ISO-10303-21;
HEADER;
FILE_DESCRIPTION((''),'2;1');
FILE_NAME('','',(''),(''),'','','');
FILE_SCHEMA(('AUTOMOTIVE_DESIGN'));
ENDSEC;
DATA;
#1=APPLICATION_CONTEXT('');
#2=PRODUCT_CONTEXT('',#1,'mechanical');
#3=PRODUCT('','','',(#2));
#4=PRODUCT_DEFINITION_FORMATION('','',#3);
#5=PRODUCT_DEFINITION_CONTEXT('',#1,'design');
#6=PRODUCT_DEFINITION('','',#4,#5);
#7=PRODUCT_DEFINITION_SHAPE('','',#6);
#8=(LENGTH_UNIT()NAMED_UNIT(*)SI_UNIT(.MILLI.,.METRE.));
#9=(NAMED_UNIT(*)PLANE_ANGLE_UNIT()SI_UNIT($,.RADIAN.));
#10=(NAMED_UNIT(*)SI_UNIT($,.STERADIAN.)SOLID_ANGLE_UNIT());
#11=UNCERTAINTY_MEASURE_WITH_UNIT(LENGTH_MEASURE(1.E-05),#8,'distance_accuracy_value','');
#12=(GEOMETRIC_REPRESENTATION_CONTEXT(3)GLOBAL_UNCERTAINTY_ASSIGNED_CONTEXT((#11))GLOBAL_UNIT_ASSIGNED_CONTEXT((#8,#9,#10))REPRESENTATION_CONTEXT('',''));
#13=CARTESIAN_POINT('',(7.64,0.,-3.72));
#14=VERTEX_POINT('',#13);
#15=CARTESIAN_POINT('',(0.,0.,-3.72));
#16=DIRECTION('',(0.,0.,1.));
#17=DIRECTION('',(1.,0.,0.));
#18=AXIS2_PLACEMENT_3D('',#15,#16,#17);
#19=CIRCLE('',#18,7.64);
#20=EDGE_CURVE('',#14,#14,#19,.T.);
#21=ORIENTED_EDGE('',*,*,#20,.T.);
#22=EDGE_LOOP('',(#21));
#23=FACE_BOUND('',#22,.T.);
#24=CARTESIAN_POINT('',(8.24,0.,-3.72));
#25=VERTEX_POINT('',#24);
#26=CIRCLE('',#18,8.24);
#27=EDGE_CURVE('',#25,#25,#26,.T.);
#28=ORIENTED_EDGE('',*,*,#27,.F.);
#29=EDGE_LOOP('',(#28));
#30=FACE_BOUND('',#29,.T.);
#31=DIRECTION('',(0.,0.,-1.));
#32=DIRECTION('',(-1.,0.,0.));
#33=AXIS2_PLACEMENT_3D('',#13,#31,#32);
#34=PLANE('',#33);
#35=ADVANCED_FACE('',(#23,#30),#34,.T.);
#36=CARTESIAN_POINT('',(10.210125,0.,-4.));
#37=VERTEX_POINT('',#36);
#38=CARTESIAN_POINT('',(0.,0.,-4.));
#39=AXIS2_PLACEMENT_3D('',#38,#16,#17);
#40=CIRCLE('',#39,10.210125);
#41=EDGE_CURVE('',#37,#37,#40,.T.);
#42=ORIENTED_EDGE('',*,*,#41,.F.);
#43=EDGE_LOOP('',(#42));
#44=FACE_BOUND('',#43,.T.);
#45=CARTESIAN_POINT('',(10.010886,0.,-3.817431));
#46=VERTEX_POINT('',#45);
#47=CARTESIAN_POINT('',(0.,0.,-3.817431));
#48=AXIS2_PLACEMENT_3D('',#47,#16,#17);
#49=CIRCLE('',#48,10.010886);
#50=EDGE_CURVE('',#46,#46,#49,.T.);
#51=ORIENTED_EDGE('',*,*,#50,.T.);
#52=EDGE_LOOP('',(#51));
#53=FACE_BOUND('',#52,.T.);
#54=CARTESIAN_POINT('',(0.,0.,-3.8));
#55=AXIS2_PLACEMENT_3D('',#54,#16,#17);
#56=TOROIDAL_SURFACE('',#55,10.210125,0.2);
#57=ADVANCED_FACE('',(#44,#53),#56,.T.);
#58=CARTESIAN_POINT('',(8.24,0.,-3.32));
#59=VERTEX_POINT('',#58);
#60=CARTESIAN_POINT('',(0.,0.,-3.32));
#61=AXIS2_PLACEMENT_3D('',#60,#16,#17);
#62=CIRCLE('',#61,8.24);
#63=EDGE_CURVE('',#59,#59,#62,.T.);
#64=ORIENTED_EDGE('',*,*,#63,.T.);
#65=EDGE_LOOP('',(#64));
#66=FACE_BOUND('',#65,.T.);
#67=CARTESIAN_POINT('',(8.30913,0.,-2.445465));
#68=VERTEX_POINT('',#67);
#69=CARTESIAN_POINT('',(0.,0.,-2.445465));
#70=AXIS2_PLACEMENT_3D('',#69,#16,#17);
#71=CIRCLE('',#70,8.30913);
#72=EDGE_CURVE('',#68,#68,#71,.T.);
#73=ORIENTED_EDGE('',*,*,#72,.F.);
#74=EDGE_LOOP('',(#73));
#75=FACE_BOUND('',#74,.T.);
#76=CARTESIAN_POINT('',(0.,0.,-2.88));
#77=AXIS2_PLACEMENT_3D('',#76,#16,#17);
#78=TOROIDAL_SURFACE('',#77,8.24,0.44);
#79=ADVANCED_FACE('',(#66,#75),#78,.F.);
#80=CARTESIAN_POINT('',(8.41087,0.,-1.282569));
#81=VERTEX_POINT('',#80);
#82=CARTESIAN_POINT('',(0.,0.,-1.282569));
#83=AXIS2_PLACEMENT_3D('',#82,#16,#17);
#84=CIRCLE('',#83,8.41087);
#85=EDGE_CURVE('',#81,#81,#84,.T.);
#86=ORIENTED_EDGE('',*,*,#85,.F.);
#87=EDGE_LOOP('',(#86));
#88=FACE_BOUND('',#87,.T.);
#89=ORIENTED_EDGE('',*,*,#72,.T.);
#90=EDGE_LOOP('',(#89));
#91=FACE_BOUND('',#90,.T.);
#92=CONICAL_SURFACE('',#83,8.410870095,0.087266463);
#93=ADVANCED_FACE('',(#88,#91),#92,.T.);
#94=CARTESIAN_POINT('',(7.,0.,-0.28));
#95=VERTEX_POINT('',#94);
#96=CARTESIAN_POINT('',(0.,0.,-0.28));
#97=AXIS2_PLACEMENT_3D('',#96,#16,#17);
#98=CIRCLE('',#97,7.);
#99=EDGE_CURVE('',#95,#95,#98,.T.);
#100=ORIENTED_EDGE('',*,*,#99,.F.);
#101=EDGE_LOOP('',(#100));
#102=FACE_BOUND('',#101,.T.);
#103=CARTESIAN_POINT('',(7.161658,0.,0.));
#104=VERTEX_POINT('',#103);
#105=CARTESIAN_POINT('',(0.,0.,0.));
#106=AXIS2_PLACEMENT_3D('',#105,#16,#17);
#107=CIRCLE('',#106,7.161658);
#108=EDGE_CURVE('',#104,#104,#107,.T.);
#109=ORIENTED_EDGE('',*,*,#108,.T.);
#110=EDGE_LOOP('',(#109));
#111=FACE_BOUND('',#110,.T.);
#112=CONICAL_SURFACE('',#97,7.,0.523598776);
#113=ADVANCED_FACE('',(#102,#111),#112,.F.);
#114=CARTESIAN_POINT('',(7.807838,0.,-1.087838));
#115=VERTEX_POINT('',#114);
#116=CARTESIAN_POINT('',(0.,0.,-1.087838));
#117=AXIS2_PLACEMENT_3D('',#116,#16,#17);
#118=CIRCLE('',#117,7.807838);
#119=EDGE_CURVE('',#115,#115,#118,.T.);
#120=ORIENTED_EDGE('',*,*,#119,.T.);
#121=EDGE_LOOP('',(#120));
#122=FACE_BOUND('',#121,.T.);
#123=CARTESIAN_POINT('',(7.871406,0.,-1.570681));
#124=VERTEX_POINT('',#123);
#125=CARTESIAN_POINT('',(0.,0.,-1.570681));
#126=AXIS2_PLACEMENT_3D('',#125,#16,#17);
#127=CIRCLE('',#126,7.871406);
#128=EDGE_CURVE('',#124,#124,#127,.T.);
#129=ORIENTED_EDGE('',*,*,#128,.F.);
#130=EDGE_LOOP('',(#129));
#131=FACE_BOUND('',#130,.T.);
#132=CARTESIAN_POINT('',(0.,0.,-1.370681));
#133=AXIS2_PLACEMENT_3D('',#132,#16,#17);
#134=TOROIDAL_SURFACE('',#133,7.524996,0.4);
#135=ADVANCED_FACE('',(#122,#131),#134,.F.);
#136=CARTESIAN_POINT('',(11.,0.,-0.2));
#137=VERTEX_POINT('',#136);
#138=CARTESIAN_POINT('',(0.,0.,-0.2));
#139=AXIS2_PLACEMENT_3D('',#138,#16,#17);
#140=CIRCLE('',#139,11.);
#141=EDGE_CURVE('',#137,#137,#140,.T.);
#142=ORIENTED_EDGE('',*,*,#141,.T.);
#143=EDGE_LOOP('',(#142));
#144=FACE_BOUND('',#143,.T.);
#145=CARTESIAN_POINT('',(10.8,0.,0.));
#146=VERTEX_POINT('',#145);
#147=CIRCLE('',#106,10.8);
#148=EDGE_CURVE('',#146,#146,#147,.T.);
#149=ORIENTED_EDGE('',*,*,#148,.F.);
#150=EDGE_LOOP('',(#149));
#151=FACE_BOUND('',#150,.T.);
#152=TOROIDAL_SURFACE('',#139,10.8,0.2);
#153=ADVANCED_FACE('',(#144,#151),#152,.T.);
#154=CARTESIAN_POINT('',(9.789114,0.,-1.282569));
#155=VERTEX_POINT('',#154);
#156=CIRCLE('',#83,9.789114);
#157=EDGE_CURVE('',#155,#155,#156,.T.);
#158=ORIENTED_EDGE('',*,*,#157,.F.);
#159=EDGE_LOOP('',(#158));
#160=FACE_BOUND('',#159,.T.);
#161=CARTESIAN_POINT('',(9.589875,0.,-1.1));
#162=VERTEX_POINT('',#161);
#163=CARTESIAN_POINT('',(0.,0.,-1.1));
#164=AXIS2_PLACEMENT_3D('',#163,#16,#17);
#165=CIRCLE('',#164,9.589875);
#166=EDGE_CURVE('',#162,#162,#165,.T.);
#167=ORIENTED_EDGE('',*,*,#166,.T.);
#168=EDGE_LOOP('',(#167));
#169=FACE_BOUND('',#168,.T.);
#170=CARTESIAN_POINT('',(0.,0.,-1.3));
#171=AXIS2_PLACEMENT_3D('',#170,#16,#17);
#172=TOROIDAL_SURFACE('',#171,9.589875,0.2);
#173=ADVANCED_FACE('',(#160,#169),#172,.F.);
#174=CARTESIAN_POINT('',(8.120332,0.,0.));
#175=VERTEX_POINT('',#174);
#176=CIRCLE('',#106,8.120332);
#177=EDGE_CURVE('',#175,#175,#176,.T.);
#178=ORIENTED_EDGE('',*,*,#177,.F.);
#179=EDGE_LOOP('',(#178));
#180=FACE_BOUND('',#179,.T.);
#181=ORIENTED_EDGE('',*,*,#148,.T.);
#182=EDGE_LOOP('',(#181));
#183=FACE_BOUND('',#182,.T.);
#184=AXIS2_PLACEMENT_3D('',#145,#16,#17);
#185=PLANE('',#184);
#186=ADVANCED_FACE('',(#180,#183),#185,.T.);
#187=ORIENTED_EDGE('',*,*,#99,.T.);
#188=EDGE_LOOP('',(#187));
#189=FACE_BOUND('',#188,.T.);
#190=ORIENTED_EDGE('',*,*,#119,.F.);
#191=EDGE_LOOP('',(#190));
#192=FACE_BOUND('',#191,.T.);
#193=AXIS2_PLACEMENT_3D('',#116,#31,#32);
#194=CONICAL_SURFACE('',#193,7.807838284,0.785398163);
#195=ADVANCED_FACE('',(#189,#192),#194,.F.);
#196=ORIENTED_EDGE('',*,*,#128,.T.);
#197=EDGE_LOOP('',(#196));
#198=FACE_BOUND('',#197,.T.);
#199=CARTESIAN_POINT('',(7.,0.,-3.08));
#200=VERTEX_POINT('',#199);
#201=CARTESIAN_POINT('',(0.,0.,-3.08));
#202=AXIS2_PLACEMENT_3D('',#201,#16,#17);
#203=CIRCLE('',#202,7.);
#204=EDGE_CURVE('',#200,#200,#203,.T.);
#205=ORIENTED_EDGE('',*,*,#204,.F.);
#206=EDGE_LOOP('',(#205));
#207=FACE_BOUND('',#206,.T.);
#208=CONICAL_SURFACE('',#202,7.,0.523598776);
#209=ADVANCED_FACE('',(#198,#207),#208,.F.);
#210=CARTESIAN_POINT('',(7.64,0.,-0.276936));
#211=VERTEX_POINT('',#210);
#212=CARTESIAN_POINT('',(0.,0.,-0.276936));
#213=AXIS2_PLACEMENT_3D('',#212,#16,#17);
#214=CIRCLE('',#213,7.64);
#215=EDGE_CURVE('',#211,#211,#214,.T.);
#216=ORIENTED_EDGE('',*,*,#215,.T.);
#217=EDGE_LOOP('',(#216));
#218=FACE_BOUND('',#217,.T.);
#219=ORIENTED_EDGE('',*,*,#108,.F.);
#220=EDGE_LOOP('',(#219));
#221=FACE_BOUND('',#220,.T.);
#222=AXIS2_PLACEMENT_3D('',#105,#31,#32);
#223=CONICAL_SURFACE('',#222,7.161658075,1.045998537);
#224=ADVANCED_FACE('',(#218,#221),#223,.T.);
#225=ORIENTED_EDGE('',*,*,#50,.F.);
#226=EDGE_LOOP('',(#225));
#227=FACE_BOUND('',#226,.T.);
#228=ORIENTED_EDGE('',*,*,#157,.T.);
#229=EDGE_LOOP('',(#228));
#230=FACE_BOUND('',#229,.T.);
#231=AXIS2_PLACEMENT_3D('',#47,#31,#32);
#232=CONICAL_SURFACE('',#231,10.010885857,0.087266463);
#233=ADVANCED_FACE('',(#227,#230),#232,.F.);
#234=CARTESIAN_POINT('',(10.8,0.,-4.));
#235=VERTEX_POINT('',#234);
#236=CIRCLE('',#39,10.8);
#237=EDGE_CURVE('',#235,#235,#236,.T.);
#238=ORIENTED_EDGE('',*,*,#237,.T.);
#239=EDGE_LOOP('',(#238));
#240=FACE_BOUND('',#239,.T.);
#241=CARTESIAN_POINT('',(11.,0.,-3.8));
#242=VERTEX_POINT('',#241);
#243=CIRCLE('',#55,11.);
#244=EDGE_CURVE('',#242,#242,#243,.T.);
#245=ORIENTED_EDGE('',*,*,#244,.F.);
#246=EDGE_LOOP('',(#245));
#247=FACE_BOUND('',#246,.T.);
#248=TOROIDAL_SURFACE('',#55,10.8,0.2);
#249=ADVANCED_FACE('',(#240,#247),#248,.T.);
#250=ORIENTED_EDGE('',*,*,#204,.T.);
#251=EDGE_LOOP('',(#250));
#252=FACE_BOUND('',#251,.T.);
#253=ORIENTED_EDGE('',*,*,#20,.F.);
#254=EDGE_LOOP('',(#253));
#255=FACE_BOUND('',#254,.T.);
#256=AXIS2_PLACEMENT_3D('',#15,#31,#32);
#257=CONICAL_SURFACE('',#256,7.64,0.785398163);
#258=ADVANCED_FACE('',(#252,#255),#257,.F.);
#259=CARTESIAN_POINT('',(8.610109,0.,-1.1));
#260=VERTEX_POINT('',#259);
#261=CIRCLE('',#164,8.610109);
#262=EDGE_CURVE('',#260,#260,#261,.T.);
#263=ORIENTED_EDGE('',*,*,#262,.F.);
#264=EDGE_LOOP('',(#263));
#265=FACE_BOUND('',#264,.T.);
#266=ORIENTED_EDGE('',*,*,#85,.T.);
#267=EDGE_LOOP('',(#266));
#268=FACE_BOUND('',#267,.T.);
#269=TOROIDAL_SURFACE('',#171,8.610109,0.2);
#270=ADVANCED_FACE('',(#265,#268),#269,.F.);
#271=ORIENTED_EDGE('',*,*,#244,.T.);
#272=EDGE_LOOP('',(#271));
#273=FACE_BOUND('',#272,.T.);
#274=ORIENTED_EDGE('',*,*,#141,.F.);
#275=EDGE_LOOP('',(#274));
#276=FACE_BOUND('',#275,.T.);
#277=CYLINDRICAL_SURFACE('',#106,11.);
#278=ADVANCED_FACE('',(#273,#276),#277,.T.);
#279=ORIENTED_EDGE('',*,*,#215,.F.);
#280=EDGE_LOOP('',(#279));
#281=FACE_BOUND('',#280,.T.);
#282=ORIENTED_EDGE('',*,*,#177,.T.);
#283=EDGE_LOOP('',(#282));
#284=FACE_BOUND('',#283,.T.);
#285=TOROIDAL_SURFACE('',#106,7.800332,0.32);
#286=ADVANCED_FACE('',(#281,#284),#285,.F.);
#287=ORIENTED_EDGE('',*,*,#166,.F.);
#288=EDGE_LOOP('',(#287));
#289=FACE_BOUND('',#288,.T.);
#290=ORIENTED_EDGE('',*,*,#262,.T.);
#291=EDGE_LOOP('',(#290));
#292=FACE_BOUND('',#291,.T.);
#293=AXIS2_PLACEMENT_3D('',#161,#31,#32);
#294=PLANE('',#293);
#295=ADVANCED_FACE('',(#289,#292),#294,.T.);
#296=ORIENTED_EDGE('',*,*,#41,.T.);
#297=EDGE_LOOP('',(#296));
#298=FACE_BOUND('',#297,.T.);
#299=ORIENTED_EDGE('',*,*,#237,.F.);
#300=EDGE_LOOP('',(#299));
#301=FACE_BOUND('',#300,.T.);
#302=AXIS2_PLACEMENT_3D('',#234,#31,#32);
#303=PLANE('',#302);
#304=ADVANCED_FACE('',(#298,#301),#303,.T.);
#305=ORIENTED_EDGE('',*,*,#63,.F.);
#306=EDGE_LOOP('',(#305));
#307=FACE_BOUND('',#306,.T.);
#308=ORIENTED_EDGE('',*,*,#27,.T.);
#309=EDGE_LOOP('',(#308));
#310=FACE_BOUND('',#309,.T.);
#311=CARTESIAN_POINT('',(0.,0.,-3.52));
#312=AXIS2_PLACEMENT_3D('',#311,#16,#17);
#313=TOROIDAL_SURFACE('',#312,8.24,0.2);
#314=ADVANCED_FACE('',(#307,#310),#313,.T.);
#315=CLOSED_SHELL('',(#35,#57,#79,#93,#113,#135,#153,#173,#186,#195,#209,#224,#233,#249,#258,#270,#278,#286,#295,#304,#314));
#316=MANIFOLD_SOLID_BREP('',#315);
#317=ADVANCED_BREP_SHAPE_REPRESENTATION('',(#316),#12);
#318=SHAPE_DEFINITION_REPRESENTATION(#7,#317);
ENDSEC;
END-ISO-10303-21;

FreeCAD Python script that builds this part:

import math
import FreeCAD as App
import Part
import Sketcher

V = App.Vector
Q = App.Units.Quantity

doc = App.newDocument("Part")
params = doc.addObject("Spreadsheet::Sheet", "Params")
for row, (alias, value) in enumerate([
    ("sketch1_radius", "0.2 mm"),
    ("sketch1_radius2", "0.4 mm"),
    ("sketch1_radius3", "0.44 mm"),
    ("sketch1_radius4", "0.32 mm"),
    ("sketch1_width", "0.6 mm"),
    ("revolution_angle", "360 deg"),
], start=1):
    params.set(f"A{row}", alias)
    params.set(f"B{row}", "=" + value)
    params.setAlias(f"B{row}", alias)

body = doc.addObject("PartDesign::Body", "Body")

sketch1 = body.newObject("Sketcher::SketchObject", "Sketch")
sketch1.AttachmentSupport = (doc.getObject("XZ_Plane"), [""])
sketch1.MapMode = "FlatFace"
sketch1.addGeometry([
    Part.LineSegment(V(11, -0.2, 0), V(11, -3.8, 0)),
    Part.ArcOfCircle(Part.Circle(V(10.8, -3.8, 0), V(0, 0, 1), 0.2), math.radians(-90), math.radians(0)),
    Part.LineSegment(V(10.8, -4, 0), V(10.210125, -4, 0)),
    Part.ArcOfCircle(Part.Circle(V(10.210125, -3.8, 0), V(0, 0, 1), 0.2), math.radians(-175), math.radians(-90)),
    Part.LineSegment(V(10.010886, -3.817431, 0), V(9.789114, -1.282569, 0)),
    Part.ArcOfCircle(Part.Circle(V(9.589875, -1.3, 0), V(0, 0, 1), 0.2), math.radians(5), math.radians(90)),
    Part.LineSegment(V(9.589875, -1.1, 0), V(8.610109, -1.1, 0)),
    Part.ArcOfCircle(Part.Circle(V(8.610109, -1.3, 0), V(0, 0, 1), 0.2), math.radians(90), math.radians(175)),
    Part.LineSegment(V(8.41087, -1.282569, 0), V(8.30913, -2.445465, 0)),
    Part.ArcOfCircle(Part.Circle(V(8.24, -2.88, 0), V(0, 0, 1), 0.44), math.radians(80.960612), math.radians(270)),
    Part.ArcOfCircle(Part.Circle(V(8.24, -3.52, 0), V(0, 0, 1), 0.2), math.radians(-90), math.radians(90)),
    Part.LineSegment(V(8.24, -3.72, 0), V(7.64, -3.72, 0)),
    Part.LineSegment(V(7.64, -3.72, 0), V(7, -3.08, 0)),
    Part.LineSegment(V(7, -3.08, 0), V(7.871406, -1.570681, 0)),
    Part.ArcOfCircle(Part.Circle(V(7.524996, -1.370681, 0), V(0, 0, 1), 0.4), math.radians(-30), math.radians(45)),
    Part.LineSegment(V(7.807838, -1.087838, 0), V(7, -0.28, 0)),
    Part.LineSegment(V(7, -0.28, 0), V(7.161658, 0, 0)),
    Part.LineSegment(V(7.161658, 0, 0), V(7.64, -0.276936, 0)),
    Part.ArcOfCircle(Part.Circle(V(7.800332, 0, 0), V(0, 0, 1), 0.32), math.radians(-120.068699), math.radians(0)),
    Part.LineSegment(V(8.120332, 0, 0), V(10.8, 0, 0)),
    Part.ArcOfCircle(Part.Circle(V(10.8, -0.2, 0), V(0, 0, 1), 0.2), math.radians(0), math.radians(90)),
], False)
sketch1.addConstraint([
    Sketcher.Constraint("Tangent", 0, 2, 1, 2),
    Sketcher.Constraint("Tangent", 1, 1, 2, 1),
    Sketcher.Constraint("Tangent", 2, 2, 3, 2),
    Sketcher.Constraint("Tangent", 3, 1, 4, 1),
    Sketcher.Constraint("Tangent", 4, 2, 5, 1),
    Sketcher.Constraint("Tangent", 5, 2, 6, 1),
    Sketcher.Constraint("Tangent", 6, 2, 7, 1),
    Sketcher.Constraint("Tangent", 7, 2, 8, 1),
    Sketcher.Constraint("Coincident", 8, 2, 9, 1),
    Sketcher.Constraint("Tangent", 9, 2, 10, 2),
    Sketcher.Constraint("Tangent", 10, 1, 11, 1),
    Sketcher.Constraint("Coincident", 11, 2, 12, 1),
    Sketcher.Constraint("Coincident", 12, 2, 13, 1),
    Sketcher.Constraint("Tangent", 13, 2, 14, 1),
    Sketcher.Constraint("Tangent", 14, 2, 15, 1),
    Sketcher.Constraint("Coincident", 15, 2, 16, 1),
    Sketcher.Constraint("Coincident", 16, 2, 17, 1),
    Sketcher.Constraint("Tangent", 17, 2, 18, 1),
    Sketcher.Constraint("Coincident", 18, 2, 19, 1),
    Sketcher.Constraint("Tangent", 19, 2, 20, 2),
    Sketcher.Constraint("Tangent", 20, 1, 0, 1),
    Sketcher.Constraint("Vertical", 0),
    Sketcher.Constraint("Horizontal", 2),
    Sketcher.Constraint("Horizontal", 6),
    Sketcher.Constraint("Horizontal", 11),
    Sketcher.Constraint("Horizontal", 19),
    Sketcher.Constraint("Equal", 1, 3),
    Sketcher.Constraint("Equal", 3, 5),
    Sketcher.Constraint("Equal", 5, 7),
    Sketcher.Constraint("Equal", 7, 10),
    Sketcher.Constraint("Equal", 10, 20),
    Sketcher.Constraint("PointOnObject", 18, 3, -1),
    Sketcher.Constraint("PointOnObject", 16, 2, -1),
    Sketcher.Constraint("PointOnObject", 18, 2, -1),
    Sketcher.Constraint("Parallel", 12, 15),
    Sketcher.Constraint("Parallel", 13, 16),
    Sketcher.Constraint("Horizontal", 4, 2, 7, 2),
    Sketcher.Constraint("Vertical", 9, 3, 10, 3),
    Sketcher.Constraint("Vertical", 12, 2, 15, 2),
    Sketcher.Constraint("Vertical", 11, 2, 17, 2),
    Sketcher.Constraint("Radius", 1, 0.2),
    Sketcher.Constraint("Radius", 14, 0.4),
    Sketcher.Constraint("Angle", 4, Q("95 deg")),
    Sketcher.Constraint("Angle", 12, Q("135 deg")),
    Sketcher.Constraint("Angle", 13, Q("60 deg")),
    Sketcher.Constraint("Radius", 9, 0.44),
    Sketcher.Constraint("Radius", 18, 0.32),
    Sketcher.Constraint("DistanceX", 11, 2, 11, 1, 0.6),
    Sketcher.Constraint("DistanceY", 0, 2, 0, 1, 3.6),
    Sketcher.Constraint("DistanceX", -1, 1, 0, 2, 11.0),
    Sketcher.Constraint("DistanceX", -1, 1, 12, 2, 7.0),
    Sketcher.Constraint("DistanceY", 5, 3, -1, 1, 1.3),
    Sketcher.Constraint("DistanceY", 12, 2, 9, 3, 0.2),
    Sketcher.Constraint("DistanceY", 9, 3, -1, 1, 2.88),
    Sketcher.Constraint("DistanceY", 15, 2, -1, 1, 0.28),
    Sketcher.Constraint("DistanceX", 2, 2, 2, 1, 0.589875),
    Sketcher.Constraint("DistanceX", 6, 2, 6, 1, 0.979766),
])
sketch1.setExpression("Constraints[40]", "Params.sketch1_radius")
sketch1.setExpression("Constraints[41]", "Params.sketch1_radius2")
sketch1.setExpression("Constraints[45]", "Params.sketch1_radius3")
sketch1.setExpression("Constraints[46]", "Params.sketch1_radius4")
sketch1.setExpression("Constraints[47]", "Params.sketch1_width")
revolution = body.newObject("PartDesign::Revolution", "Revolution")
revolution.Profile = sketch1
revolution.ReferenceAxis = (sketch1, ["V_Axis"])
revolution.setExpression("Angle", "Params.revolution_angle")

doc.recompute()
